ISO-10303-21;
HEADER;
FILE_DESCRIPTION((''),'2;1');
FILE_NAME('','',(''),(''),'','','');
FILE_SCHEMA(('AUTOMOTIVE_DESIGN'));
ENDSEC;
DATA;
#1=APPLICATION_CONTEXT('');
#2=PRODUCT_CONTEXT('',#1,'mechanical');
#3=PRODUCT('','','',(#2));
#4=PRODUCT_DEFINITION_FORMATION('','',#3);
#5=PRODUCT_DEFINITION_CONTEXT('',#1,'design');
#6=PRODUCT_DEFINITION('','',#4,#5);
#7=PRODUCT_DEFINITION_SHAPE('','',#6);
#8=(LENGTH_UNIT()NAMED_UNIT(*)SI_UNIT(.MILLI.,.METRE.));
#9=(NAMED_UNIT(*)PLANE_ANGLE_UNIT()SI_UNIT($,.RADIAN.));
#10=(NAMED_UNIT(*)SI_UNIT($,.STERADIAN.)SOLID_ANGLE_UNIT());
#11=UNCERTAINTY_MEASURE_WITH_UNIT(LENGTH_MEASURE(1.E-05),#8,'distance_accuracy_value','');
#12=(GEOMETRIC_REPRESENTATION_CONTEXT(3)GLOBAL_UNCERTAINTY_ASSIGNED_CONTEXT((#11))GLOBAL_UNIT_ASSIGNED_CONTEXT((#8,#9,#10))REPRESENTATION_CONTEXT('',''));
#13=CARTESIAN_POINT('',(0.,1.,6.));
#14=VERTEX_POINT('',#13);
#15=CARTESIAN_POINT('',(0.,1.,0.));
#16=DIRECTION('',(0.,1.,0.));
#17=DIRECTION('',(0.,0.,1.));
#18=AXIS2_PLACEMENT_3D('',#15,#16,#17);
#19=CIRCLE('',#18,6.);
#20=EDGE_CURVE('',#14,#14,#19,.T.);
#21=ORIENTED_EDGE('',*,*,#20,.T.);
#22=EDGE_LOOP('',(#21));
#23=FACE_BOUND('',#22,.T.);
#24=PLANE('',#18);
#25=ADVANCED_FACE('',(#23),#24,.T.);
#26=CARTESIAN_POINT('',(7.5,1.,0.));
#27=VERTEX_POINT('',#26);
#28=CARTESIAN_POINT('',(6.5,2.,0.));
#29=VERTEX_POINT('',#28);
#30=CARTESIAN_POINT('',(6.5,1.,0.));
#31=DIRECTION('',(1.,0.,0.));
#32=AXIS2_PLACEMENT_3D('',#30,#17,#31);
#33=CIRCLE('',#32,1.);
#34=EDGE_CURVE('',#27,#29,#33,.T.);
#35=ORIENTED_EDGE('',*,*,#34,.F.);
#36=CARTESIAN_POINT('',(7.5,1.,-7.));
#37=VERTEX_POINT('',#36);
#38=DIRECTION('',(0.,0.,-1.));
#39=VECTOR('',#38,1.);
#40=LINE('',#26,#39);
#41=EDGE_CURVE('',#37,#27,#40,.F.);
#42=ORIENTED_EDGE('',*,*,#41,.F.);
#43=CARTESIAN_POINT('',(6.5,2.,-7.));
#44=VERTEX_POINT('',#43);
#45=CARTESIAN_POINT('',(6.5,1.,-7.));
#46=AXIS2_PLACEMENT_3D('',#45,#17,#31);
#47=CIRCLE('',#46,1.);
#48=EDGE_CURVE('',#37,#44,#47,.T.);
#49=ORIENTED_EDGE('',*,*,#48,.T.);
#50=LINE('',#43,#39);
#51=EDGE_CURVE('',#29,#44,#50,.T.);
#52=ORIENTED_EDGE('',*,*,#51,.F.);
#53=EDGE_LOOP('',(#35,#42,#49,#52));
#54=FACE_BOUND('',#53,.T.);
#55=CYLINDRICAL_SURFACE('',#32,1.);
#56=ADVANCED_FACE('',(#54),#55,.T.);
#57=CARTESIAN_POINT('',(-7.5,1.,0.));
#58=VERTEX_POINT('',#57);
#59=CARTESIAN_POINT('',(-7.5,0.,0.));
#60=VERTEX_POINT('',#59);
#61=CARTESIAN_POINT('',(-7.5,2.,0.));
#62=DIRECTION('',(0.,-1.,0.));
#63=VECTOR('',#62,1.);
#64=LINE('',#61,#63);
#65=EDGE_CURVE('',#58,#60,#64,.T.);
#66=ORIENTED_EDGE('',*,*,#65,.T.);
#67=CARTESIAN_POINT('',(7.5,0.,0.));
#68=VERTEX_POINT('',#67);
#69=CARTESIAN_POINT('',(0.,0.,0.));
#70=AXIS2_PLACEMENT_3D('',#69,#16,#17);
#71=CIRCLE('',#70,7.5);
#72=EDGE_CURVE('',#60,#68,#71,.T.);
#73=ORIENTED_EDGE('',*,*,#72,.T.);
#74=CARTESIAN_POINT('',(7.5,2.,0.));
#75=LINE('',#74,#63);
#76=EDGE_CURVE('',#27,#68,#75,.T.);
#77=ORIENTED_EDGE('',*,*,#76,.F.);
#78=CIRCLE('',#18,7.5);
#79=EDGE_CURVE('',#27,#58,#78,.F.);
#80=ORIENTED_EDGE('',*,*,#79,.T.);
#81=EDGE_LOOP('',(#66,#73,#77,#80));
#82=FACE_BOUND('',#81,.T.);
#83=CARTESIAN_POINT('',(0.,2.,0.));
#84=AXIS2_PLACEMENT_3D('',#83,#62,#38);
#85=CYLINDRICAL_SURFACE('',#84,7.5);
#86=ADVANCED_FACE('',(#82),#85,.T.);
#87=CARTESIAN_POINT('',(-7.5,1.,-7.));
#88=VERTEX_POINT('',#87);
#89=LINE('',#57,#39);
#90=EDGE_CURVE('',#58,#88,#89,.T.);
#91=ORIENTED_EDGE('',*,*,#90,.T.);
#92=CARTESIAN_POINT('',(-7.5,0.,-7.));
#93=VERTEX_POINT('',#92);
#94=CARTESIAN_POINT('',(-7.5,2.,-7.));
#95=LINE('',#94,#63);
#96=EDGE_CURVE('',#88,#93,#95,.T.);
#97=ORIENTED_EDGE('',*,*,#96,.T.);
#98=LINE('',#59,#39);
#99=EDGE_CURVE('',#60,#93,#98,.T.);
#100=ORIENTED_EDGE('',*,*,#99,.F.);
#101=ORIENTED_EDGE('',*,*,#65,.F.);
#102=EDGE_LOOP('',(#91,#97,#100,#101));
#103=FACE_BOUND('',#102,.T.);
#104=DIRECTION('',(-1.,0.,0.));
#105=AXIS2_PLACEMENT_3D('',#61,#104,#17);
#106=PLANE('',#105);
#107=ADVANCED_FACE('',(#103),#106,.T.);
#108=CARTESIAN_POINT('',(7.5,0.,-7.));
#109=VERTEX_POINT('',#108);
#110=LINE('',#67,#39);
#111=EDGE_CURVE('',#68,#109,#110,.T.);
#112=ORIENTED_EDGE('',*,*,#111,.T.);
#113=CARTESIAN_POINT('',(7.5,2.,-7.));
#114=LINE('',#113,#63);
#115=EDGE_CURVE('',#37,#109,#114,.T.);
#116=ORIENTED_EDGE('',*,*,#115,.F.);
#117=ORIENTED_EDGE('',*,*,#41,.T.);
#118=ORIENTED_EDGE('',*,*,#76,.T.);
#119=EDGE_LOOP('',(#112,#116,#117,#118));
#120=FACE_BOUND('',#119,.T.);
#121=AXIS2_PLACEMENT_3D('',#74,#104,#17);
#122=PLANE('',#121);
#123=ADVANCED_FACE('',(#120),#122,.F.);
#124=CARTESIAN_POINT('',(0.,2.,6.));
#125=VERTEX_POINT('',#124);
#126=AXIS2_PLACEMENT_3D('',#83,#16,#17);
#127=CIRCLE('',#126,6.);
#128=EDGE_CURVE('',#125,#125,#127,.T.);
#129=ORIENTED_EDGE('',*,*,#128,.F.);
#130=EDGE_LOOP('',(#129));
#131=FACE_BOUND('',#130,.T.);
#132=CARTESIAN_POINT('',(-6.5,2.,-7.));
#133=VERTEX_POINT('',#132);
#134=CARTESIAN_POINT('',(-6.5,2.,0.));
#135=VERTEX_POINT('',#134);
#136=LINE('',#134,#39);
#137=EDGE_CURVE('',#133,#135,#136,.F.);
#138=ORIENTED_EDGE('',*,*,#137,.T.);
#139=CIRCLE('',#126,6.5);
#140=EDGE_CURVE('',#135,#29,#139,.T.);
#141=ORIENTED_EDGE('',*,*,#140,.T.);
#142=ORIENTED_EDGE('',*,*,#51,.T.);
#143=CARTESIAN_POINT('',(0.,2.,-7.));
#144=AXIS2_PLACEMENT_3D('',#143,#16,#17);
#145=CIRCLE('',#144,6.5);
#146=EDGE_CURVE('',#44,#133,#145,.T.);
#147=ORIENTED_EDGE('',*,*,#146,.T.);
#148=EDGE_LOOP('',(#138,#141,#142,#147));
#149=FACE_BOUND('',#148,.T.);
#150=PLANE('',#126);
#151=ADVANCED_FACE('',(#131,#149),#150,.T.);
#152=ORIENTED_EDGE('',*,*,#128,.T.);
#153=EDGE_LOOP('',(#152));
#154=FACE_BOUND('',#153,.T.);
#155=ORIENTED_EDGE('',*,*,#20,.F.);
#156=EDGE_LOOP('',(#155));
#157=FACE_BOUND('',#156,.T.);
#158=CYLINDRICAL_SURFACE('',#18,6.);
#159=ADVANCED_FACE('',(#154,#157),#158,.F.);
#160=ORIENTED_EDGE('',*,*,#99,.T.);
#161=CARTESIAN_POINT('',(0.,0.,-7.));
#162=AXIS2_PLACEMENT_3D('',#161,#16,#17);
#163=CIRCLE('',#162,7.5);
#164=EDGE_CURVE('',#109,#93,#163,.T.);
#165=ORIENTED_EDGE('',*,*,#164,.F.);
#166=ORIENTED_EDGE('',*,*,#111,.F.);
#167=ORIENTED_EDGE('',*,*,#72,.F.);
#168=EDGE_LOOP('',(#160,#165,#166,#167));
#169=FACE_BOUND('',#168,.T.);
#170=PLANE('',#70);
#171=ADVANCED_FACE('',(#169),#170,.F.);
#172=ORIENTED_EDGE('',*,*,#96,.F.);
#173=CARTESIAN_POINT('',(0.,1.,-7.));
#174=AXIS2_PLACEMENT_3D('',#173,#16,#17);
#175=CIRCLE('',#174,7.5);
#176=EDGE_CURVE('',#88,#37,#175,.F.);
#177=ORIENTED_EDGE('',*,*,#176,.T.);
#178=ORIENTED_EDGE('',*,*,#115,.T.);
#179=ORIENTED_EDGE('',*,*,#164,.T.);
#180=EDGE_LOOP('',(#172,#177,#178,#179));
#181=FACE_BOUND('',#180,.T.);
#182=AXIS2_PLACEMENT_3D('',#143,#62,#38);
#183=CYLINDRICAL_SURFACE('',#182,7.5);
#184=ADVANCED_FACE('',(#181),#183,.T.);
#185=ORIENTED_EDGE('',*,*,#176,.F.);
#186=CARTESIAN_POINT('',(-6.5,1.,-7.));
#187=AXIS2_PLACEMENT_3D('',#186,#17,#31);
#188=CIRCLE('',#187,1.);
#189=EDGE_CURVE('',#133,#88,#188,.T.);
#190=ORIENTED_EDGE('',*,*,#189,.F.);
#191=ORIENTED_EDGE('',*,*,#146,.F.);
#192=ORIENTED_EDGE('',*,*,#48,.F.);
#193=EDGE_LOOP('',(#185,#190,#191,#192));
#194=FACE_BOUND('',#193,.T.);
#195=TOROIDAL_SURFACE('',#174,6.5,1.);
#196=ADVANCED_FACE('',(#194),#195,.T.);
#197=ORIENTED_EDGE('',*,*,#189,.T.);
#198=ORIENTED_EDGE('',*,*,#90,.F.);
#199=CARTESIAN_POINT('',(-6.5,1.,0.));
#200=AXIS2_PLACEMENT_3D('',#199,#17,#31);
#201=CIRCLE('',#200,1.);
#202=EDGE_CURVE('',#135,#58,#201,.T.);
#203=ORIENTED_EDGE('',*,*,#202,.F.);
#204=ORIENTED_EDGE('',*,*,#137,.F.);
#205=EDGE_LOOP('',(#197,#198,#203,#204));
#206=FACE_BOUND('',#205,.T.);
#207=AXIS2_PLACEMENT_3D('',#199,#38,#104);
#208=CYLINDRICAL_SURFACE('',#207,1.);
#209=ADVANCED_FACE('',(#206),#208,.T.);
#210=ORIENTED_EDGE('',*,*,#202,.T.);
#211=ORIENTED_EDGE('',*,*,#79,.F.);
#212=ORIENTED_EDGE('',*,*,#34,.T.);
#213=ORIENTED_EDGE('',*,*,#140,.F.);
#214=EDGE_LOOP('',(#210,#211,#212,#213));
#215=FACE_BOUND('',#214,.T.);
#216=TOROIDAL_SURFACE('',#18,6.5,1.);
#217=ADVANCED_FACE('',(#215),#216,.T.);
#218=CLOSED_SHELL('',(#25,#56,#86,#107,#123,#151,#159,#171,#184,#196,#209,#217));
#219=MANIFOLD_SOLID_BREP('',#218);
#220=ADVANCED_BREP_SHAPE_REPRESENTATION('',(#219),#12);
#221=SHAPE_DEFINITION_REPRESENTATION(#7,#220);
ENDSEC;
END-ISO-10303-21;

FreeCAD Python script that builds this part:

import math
import FreeCAD as App
import Part
import Sketcher


def edges_at(feature, points):
    """Names of the edges that pass closest to the given points."""
    edges = feature.Shape.Edges
    near = lambda p: min(range(len(edges)), key=lambda i: edges[i].distToShape(Part.Vertex(*p))[0])
    return sorted({f"Edge{near(p) + 1}" for p in points})

doc = App.newDocument("Part")
body = doc.addObject("PartDesign::Body", "Body")

# Sketch on XZ plane
sketch1 = body.newObject("Sketcher::SketchObject", "Sketch")
sketch1.AttachmentSupport = (doc.getObject("XZ_Plane"), [""])
sketch1.MapMode = "FlatFace"
sketch1.addGeometry([
    Part.LineSegment(App.Vector(-8, -7, 0), App.Vector(-8, 0, 0)),
    Part.ArcOfCircle(Part.Circle(App.Vector(0, 0, 0), App.Vector(0, 0, 1), 8), math.radians(0), math.radians(180)),
    Part.LineSegment(App.Vector(8, 0, 0), App.Vector(8, -7, 0)),
    Part.ArcOfCircle(Part.Circle(App.Vector(0, -7, 0), App.Vector(0, 0, 1), 8), math.radians(180), math.radians(360)),
], False)
sketch1.addConstraint([
    Sketcher.Constraint("Tangent", 0, 2, 1, 2),
    Sketcher.Constraint("Tangent", 1, 1, 2, 1),
    Sketcher.Constraint("Tangent", 2, 2, 3, 2),
    Sketcher.Constraint("Tangent", 3, 1, 0, 1),
    Sketcher.Constraint("Vertical", 0),
    Sketcher.Constraint("Vertical", 2),
    Sketcher.Constraint("Coincident", 1, 3, -1, 1),
    Sketcher.Constraint("Radius", 1, 7.5),
    Sketcher.Constraint("DistanceY", 0, 1, 0, 2, 7.0),
])
pad1 = body.newObject("PartDesign::Pad", "Pad")
pad1.Profile = sketch1
pad1.Length = 2
pad1.Reversed = True

# Sketch on XZ plane
sketch2 = body.newObject("Sketcher::SketchObject", "Sketch001")
sketch2.AttachmentSupport = (doc.getObject("XZ_Plane"), [""])
sketch2.MapMode = "FlatFace"
sketch2.AttachmentOffset = App.Placement(App.Vector(0, 0, -2), App.Rotation())
sketch2.addGeometry(Part.Circle(App.Vector(0, 0, 0), App.Vector(0, 0, 1), 6), False)
sketch2.addConstraint([
    Sketcher.Constraint("Coincident", 0, 3, -1, 1),
    Sketcher.Constraint("Diameter", 0, 12.0),
])
pocket1 = body.newObject("PartDesign::Pocket", "Pocket")
pocket1.Profile = sketch2
pocket1.Length = 1
pocket1.Reversed = True
doc.recompute()

fillet = body.newObject("PartDesign::Fillet", "Fillet")
fillet.Base = (pocket1, edges_at(pocket1, [
    (0, 2, -14.5),
    (-7.5, 2, -3.5),
    (0, 2, 7.5),
    (7.5, 2, -3.5),
]))
fillet.Radius = 1

doc.recompute()
